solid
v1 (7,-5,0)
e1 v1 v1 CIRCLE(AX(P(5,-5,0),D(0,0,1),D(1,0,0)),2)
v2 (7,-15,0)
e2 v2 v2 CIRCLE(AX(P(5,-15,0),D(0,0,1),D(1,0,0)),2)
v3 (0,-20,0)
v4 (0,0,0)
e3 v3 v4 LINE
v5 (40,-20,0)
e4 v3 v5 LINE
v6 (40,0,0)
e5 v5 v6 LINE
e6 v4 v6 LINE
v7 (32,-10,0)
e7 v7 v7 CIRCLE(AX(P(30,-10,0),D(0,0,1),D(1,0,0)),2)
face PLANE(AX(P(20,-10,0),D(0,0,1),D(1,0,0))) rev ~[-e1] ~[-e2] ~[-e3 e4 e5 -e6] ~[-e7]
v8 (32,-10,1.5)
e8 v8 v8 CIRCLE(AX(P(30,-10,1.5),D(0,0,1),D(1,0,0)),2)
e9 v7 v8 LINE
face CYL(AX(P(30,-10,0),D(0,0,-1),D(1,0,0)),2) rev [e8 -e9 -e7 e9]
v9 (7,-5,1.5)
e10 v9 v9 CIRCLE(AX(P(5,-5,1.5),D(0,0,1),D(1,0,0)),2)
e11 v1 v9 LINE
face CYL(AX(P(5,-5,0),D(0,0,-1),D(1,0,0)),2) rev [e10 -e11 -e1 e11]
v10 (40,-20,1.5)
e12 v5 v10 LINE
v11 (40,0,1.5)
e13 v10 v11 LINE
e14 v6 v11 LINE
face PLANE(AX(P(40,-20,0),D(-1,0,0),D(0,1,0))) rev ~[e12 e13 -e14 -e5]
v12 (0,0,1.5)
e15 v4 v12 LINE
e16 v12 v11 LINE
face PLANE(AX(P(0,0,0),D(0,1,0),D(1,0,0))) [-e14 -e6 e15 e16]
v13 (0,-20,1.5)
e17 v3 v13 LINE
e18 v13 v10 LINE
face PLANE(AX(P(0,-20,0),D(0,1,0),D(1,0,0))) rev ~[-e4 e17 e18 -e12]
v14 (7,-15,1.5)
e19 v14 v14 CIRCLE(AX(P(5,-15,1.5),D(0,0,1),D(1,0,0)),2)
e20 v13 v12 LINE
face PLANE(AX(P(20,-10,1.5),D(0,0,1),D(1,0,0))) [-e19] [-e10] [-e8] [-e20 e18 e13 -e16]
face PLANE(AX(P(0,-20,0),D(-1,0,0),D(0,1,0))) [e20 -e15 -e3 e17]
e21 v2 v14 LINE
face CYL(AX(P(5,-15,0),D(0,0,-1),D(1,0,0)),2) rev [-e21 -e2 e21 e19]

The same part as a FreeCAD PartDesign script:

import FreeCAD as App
import Part
import Sketcher

doc = App.newDocument("Part")
params = doc.addObject("Spreadsheet::Sheet", "Params")
for row, (alias, value) in enumerate([
    ("sketch1_diameter", "4 mm"),
    ("sketch1_width", "40 mm"),
    ("sketch1_height", "20 mm"),
    ("pad1_length", "1.5 mm"),
], start=1):
    params.set(f"A{row}", alias)
    params.set(f"B{row}", "=" + value)
    params.setAlias(f"B{row}", alias)

body = doc.addObject("PartDesign::Body", "Body")

# Sketch on XY plane
sketch1 = body.newObject("Sketcher::SketchObject", "Sketch")
sketch1.AttachmentSupport = (doc.getObject("XY_Plane"), [""])
sketch1.MapMode = "FlatFace"
sketch1.addGeometry(Part.LineSegment(App.Vector(0, 0, 0), App.Vector(0, -20, 0)), False)
sketch1.addGeometry(Part.LineSegment(App.Vector(0, -20, 0), App.Vector(40, -20, 0)), False)
sketch1.addGeometry(Part.LineSegment(App.Vector(40, -20, 0), App.Vector(40, 0, 0)), False)
sketch1.addGeometry(Part.LineSegment(App.Vector(40, 0, 0), App.Vector(0, 0, 0)), False)
sketch1.addGeometry(Part.Circle(App.Vector(5, -15, 0), App.Vector(0, 0, 1), 2), False)
sketch1.addGeometry(Part.Circle(App.Vector(5, -5, 0), App.Vector(0, 0, 1), 2), False)
sketch1.addGeometry(Part.Circle(App.Vector(30, -10, 0), App.Vector(0, 0, 1), 2), False)
sketch1.addConstraint(Sketcher.Constraint("Coincident", 0, 2, 1, 1))
sketch1.addConstraint(Sketcher.Constraint("Coincident", 1, 2, 2, 1))
sketch1.addConstraint(Sketcher.Constraint("Coincident", 2, 2, 3, 1))
sketch1.addConstraint(Sketcher.Constraint("Coincident", 3, 2, 0, 1))
sketch1.addConstraint(Sketcher.Constraint("Vertical", 0))
sketch1.addConstraint(Sketcher.Constraint("Horizontal", 1))
sketch1.addConstraint(Sketcher.Constraint("Vertical", 2))
sketch1.addConstraint(Sketcher.Constraint("Horizontal", 3))
sketch1.addConstraint(Sketcher.Constraint("Coincident", 3, 2, -1, 1))
sketch1.addConstraint(Sketcher.Constraint("Equal", 4, 5))
sketch1.addConstraint(Sketcher.Constraint("Equal", 5, 6))
sketch1.addConstraint(Sketcher.Constraint("Vertical", 4, 3, 5, 3))
sketch1.addConstraint(Sketcher.Constraint("Diameter", 4, 4.0))
sketch1.addConstraint(Sketcher.Constraint("DistanceX", 1, 1, 1, 2, 40.0))
sketch1.addConstraint(Sketcher.Constraint("DistanceY", 0, 2, 0, 1, 20.0))
sketch1.addConstraint(Sketcher.Constraint("DistanceX", -1, 1, 4, 3, 5.0))
sketch1.addConstraint(Sketcher.Constraint("DistanceY", 4, 3, -1, 1, 15.0))
sketch1.addConstraint(Sketcher.Constraint("DistanceY", 5, 3, -1, 1, 5.0))
sketch1.addConstraint(Sketcher.Constraint("DistanceX", -1, 1, 6, 3, 30.0))
sketch1.addConstraint(Sketcher.Constraint("DistanceY", 6, 3, -1, 1, 10.0))
sketch1.setExpression("Constraints[12]", "Params.sketch1_diameter")
sketch1.setExpression("Constraints[13]", "Params.sketch1_width")
sketch1.setExpression("Constraints[14]", "Params.sketch1_height")
pad1 = body.newObject("PartDesign::Pad", "Pad")
pad1.Profile = sketch1
pad1.setExpression("Length", "Params.pad1_length")

doc.recompute()
